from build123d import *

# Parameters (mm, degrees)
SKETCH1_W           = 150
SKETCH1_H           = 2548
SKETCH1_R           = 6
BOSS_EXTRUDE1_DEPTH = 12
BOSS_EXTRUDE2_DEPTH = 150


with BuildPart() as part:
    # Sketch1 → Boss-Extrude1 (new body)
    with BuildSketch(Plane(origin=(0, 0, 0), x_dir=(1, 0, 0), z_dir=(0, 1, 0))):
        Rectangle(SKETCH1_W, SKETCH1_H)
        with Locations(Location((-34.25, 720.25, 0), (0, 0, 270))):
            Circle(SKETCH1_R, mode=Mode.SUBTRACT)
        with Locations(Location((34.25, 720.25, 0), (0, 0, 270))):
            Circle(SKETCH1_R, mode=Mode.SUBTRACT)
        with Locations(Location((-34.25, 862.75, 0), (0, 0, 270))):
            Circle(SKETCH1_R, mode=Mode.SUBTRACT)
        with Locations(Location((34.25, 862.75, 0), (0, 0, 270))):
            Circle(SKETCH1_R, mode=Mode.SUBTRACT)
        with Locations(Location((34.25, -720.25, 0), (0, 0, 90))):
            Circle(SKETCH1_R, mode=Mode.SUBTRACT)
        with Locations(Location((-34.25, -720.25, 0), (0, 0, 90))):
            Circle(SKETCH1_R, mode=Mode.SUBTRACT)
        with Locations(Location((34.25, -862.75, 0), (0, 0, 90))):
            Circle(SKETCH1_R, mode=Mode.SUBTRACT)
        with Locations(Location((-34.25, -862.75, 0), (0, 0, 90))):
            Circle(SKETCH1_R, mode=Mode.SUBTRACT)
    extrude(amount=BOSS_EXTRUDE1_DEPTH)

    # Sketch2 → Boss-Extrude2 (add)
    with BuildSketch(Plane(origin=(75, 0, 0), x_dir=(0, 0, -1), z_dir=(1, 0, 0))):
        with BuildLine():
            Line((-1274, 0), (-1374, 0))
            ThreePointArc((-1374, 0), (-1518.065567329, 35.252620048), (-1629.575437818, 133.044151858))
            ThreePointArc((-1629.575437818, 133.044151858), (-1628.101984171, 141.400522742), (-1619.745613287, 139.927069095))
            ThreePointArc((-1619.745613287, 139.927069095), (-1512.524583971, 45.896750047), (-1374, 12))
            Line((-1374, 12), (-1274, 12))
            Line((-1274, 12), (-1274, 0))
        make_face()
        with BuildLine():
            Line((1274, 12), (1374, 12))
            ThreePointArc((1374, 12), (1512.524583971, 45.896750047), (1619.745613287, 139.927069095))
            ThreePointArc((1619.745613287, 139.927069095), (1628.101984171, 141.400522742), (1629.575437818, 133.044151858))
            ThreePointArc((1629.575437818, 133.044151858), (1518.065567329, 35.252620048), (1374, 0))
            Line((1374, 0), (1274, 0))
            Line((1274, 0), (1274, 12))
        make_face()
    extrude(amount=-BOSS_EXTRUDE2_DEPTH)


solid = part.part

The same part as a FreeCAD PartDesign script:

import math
import FreeCAD as App
import Part
import Sketcher

V = App.Vector
Q = App.Units.Quantity


def add_polygon(sketch, points):
    """Adds a closed chain of lines whose ends are joined by coincident constraints."""
    first, n = sketch.GeometryCount, len(points)
    for a, b in zip(points, points[1:] + points[:1]):
        sketch.addGeometry(Part.LineSegment(App.Vector(*a, 0), App.Vector(*b, 0)), False)
    for i in range(n):
        sketch.addConstraint(Sketcher.Constraint("Coincident", first + i, 2, first + (i + 1) % n, 1))

doc = App.newDocument("Part")
params = doc.addObject("Spreadsheet::Sheet", "Params")
for row, (alias, value) in enumerate([
    ("sketch1_diameter", "12 mm"),
    ("sketch1_width", "150 mm"),
    ("sketch1_height", "2548 mm"),
    ("pad1_length", "12 mm"),
    ("sketch2_radius", "300 mm"),
    ("sketch2_radius2", "6 mm"),
    ("sketch2_height", "100 mm"),
    ("pad2_length", "150 mm"),
], start=1):
    params.set(f"A{row}", alias)
    params.set(f"B{row}", "=" + value)
    params.setAlias(f"B{row}", alias)

body = doc.addObject("PartDesign::Body", "Body")

# Sketch on XZ plane
sketch1 = doc.addObject("Sketcher::SketchObject", "Sketch")
body.addObject(sketch1)
sketch1.AttachmentSupport = (doc.XZ_Plane, [""])
sketch1.MapMode = "FlatFace"
add_polygon(sketch1, [(-75, -1274), (-75, 1274), (75, 1274), (75, -1274)])  # lines 0-3
sketch1.addGeometry(Part.Circle(V(-34, 863, 0), V(0, 0, 1), 6), False)  # 4
sketch1.addGeometry(Part.Circle(V(-34, 720, 0), V(0, 0, 1), 6), False)  # 5
sketch1.addGeometry(Part.Circle(V(34, 863, 0), V(0, 0, 1), 6), False)  # 6
sketch1.addGeometry(Part.Circle(V(34, 720, 0), V(0, 0, 1), 6), False)  # 7
sketch1.addGeometry(Part.Circle(V(-34, -720, 0), V(0, 0, 1), 6), False)  # 8
sketch1.addGeometry(Part.Circle(V(-34, -863, 0), V(0, 0, 1), 6), False)  # 9
sketch1.addGeometry(Part.Circle(V(34, -720, 0), V(0, 0, 1), 6), False)  # 10
sketch1.addGeometry(Part.Circle(V(34, -863, 0), V(0, 0, 1), 6), False)  # 11
sketch1.addConstraint([
    Sketcher.Constraint("Vertical", 0),
    Sketcher.Constraint("Horizontal", 1),
    Sketcher.Constraint("Vertical", 2),
    Sketcher.Constraint("Horizontal", 3),
    Sketcher.Constraint("Equal", 4, 5),
    Sketcher.Constraint("Equal", 5, 6),
    Sketcher.Constraint("Equal", 6, 7),
    Sketcher.Constraint("Equal", 7, 8),
    Sketcher.Constraint("Equal", 8, 9),
    Sketcher.Constraint("Equal", 9, 10),
    Sketcher.Constraint("Equal", 10, 11),
    Sketcher.Constraint("Symmetric", 7, 3, 8, 3, -1, 1),
    Sketcher.Constraint("Symmetric", 6, 3, 9, 3, -1, 1),
    Sketcher.Constraint("Symmetric", 5, 3, 10, 3, -1, 1),
    Sketcher.Constraint("Symmetric", 4, 3, 11, 3, -1, 1),
    Sketcher.Constraint("Symmetric", 0, 2, 2, 2, -1, 1),
    Sketcher.Constraint("Symmetric", 4, 3, 6, 3, -2),
    Sketcher.Constraint("Symmetric", 5, 3, 7, 3, -2),
    Sketcher.Constraint("Vertical", 4, 3, 5, 3),
    Sketcher.Constraint("Diameter", 4, Q("12 mm")),
    Sketcher.Constraint("DistanceX", 1, 1, 1, 2, Q("150 mm")),
    Sketcher.Constraint("DistanceY", 0, 1, 0, 2, Q("2548 mm")),
    Sketcher.Constraint("DistanceY", 8, 3, 4, 3, Q("1583 mm")),
    Sketcher.Constraint("DistanceY", 5, 3, 4, 3, Q("142.5 mm")),
    Sketcher.Constraint("DistanceX", 4, 3, 6, 3, Q("68.5 mm")),
])
sketch1.setExpression("Constraints[23]", "Params.sketch1_diameter")
sketch1.setExpression("Constraints[24]", "Params.sketch1_width")
sketch1.setExpression("Constraints[25]", "Params.sketch1_height")
pad1 = doc.addObject("PartDesign::Pad", "Pad")
body.addObject(pad1)
pad1.Profile = sketch1
pad1.setExpression("Length", "Params.pad1_length")
pad1.Reversed = True

# Sketch on YZ plane
sketch2 = doc.addObject("Sketcher::SketchObject", "Sketch001")
body.addObject(sketch2)
sketch2.AttachmentSupport = (doc.YZ_Plane, [""])
sketch2.MapMode = "FlatFace"
sketch2.AttachmentOffset = App.Placement(V(0, 0, 75), App.Rotation())
sketch2.addGeometry([
    Part.LineSegment(V(0, 1374, 0), V(0, 1274, 0)),  # 0
    Part.LineSegment(V(0, 1274, 0), V(12, 1274, 0)),  # 1
    Part.LineSegment(V(12, 1274, 0), V(12, 1374, 0)),  # 2
    Part.ArcOfCircle(Part.Circle(V(312, 1374, 0), V(0, 0, 1), 300), math.radians(125), math.radians(180)),  # 3
    Part.ArcOfCircle(Part.Circle(V(136, 1625, 0), V(0, 0, 1), 6), math.radians(-55), math.radians(125)),  # 4
    Part.ArcOfCircle(Part.Circle(V(312, 1374, 0), V(0, 0, 1), 312), math.radians(125), math.radians(180)),  # 5
    Part.LineSegment(V(12, -1374, 0), V(12, -1274, 0)),  # 6
    Part.LineSegment(V(12, -1274, 0), V(0, -1274, 0)),  # 7
    Part.LineSegment(V(0, -1274, 0), V(0, -1374, 0)),  # 8
    Part.ArcOfCircle(Part.Circle(V(312, -1374, 0), V(0, 0, 1), 312), math.radians(180), math.radians(235)),  # 9
    Part.ArcOfCircle(Part.Circle(V(136, -1625, 0), V(0, 0, 1), 6), math.radians(-125), math.radians(55)),  # 10
    Part.ArcOfCircle(Part.Circle(V(312, -1374, 0), V(0, 0, 1), 300), math.radians(-180), math.radians(-125)),  # 11
], False)
sketch2.addConstraint([
    Sketcher.Constraint("Coincident", 0, 2, 1, 1),
    Sketcher.Constraint("Coincident", 1, 2, 2, 1),
    Sketcher.Constraint("Tangent", 2, 2, 3, 2),
    Sketcher.Constraint("Tangent", 3, 1, 4, 1),
    Sketcher.Constraint("Tangent", 4, 2, 5, 1),
    Sketcher.Constraint("Tangent", 5, 2, 0, 1),
    Sketcher.Constraint("Coincident", 6, 2, 7, 1),
    Sketcher.Constraint("Coincident", 7, 2, 8, 1),
    Sketcher.Constraint("Tangent", 8, 2, 9, 1),
    Sketcher.Constraint("Tangent", 9, 2, 10, 1),
    Sketcher.Constraint("Tangent", 10, 2, 11, 2),
    Sketcher.Constraint("Tangent", 11, 1, 6, 1),
    Sketcher.Constraint("Vertical", 0),
    Sketcher.Constraint("Horizontal", 1),
    Sketcher.Constraint("Vertical", 2),
    Sketcher.Constraint("Vertical", 6),
    Sketcher.Constraint("Horizontal", 7),
    Sketcher.Constraint("Vertical", 8),
    Sketcher.Constraint("Coincident", 5, 3, 3, 3),
    Sketcher.Constraint("Coincident", 11, 3, 9, 3),
    Sketcher.Constraint("Equal", 5, 9),
    Sketcher.Constraint("Equal", 4, 10),
    Sketcher.Constraint("Symmetric", 0, 2, 7, 2, -1, 1),
    Sketcher.Constraint("Symmetric", 3, 3, 9, 3, -1),
    Sketcher.Constraint("Vertical", 4, 3, 10, 3),
    Sketcher.Constraint("Radius", 3, Q("300 mm")),
    Sketcher.Constraint("Radius", 4, Q("6 mm")),
    Sketcher.Constraint("DistanceY", 0, 2, 0, 1, Q("100 mm")),
    Sketcher.Constraint("DistanceY", -1, 1, 3, 3, Q("1374 mm")),
    Sketcher.Constraint("DistanceX", -1, 1, 4, 3, Q("136.48561 mm")),
])
sketch2.setExpression("Constraints[25]", "Params.sketch2_radius")
sketch2.setExpression("Constraints[26]", "Params.sketch2_radius2")
sketch2.setExpression("Constraints[27]", "Params.sketch2_height")
pad2 = doc.addObject("PartDesign::Pad", "Pad001")
body.addObject(pad2)
pad2.Profile = sketch2
pad2.setExpression("Length", "Params.pad2_length")
pad2.Reversed = True

doc.recompute()
